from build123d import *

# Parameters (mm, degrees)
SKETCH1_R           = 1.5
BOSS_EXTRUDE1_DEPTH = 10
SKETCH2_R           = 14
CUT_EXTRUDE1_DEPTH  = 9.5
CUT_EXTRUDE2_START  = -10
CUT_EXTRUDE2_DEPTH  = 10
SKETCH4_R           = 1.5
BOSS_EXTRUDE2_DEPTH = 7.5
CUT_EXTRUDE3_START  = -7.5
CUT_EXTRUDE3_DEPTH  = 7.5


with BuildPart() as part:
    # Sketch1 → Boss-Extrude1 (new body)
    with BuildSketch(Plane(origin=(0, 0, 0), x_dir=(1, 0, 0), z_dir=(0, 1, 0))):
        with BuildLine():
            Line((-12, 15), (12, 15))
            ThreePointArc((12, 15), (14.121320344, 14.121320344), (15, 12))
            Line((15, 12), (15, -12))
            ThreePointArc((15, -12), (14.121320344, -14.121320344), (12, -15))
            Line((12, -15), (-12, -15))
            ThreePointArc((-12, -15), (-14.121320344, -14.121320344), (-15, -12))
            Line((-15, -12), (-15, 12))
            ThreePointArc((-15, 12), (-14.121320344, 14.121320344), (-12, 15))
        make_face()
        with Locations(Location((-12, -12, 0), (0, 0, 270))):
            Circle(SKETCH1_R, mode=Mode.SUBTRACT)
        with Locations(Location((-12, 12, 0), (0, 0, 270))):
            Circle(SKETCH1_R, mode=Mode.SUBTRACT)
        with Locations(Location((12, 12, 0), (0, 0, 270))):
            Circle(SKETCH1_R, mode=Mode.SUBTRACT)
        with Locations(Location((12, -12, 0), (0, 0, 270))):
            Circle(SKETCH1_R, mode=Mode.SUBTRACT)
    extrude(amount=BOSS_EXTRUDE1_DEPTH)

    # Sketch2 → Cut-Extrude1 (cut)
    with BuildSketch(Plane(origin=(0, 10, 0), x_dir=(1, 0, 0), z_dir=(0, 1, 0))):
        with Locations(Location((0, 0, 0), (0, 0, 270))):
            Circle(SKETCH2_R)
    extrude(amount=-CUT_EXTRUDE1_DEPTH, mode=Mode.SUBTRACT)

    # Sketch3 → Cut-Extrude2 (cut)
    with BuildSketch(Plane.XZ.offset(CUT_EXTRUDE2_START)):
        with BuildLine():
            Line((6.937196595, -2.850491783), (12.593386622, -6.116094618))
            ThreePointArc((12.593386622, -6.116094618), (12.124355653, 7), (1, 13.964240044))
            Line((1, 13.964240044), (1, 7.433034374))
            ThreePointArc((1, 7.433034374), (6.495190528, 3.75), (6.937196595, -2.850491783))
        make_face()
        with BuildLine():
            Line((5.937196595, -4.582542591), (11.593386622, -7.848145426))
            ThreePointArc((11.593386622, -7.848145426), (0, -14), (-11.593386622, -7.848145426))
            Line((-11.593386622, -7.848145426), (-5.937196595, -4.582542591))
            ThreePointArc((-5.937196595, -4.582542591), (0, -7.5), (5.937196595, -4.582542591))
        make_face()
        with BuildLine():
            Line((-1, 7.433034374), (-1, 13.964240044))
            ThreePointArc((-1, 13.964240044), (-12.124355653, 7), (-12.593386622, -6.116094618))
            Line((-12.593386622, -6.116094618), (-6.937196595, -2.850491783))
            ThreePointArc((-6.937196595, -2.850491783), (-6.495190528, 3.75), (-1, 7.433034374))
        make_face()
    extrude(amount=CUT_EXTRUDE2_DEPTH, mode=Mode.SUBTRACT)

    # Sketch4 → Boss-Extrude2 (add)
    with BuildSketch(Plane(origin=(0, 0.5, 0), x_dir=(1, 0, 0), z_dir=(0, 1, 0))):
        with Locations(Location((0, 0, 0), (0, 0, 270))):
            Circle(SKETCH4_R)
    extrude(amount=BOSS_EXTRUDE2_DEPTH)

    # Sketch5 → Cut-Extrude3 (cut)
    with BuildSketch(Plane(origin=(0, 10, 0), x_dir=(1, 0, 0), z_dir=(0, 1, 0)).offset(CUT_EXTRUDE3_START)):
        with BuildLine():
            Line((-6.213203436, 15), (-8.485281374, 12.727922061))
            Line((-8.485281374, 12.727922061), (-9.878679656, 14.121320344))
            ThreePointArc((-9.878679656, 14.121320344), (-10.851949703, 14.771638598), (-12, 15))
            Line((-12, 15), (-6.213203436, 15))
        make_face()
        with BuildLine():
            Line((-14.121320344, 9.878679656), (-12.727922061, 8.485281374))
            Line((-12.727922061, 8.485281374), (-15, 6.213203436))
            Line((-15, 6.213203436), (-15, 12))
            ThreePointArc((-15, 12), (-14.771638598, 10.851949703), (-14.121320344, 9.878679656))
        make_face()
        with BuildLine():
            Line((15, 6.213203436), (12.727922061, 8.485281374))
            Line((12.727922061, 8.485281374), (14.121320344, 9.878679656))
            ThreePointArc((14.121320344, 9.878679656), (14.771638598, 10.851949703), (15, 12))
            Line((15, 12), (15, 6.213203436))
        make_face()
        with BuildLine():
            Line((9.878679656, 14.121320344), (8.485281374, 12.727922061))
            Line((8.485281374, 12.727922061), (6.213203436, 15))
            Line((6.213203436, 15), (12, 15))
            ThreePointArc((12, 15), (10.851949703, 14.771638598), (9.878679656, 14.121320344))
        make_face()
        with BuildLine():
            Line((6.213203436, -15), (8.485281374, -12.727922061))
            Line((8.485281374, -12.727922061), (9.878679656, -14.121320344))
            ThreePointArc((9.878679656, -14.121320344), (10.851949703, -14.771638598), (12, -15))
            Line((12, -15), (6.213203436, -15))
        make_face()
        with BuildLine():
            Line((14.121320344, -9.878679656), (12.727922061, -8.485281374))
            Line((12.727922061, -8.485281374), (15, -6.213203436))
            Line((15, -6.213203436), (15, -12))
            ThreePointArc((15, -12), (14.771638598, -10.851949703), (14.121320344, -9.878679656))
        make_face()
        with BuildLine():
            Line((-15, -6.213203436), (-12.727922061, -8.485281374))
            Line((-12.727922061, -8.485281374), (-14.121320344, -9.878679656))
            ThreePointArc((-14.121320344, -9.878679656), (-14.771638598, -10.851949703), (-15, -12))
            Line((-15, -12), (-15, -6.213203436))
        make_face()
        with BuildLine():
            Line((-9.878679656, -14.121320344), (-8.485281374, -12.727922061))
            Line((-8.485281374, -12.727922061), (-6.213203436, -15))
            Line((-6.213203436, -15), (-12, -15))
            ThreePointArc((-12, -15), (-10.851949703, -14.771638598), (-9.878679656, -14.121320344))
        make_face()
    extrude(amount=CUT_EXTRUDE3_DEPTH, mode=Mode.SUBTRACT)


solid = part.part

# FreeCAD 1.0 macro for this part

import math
import FreeCAD as App
import Part
import Sketcher
Q = App.Units.Quantity

doc = App.newDocument("Part")
body = doc.addObject("PartDesign::Body", "Body")

# Sketch on XZ plane
sketch1 = body.newObject("Sketcher::SketchObject", "Sketch")
sketch1.AttachmentSupport = (doc.getObject("XZ_Plane"), [""])
sketch1.MapMode = "FlatFace"
sketch1.addGeometry(Part.LineSegment(App.Vector(12, -15, 0), App.Vector(-12, -15, 0)), False)
sketch1.addGeometry(Part.ArcOfCircle(Part.Circle(App.Vector(-12, -12, 0), App.Vector(0, 0, 1), 3), math.radians(180), math.radians(270)), False)
sketch1.addGeometry(Part.LineSegment(App.Vector(-15, -12, 0), App.Vector(-15, 12, 0)), False)
sketch1.addGeometry(Part.ArcOfCircle(Part.Circle(App.Vector(-12, 12, 0), App.Vector(0, 0, 1), 3), math.radians(90), math.radians(180)), False)
sketch1.addGeometry(Part.LineSegment(App.Vector(-12, 15, 0), App.Vector(12, 15, 0)), False)
sketch1.addGeometry(Part.ArcOfCircle(Part.Circle(App.Vector(12, 12, 0), App.Vector(0, 0, 1), 3), math.radians(0), math.radians(90)), False)
sketch1.addGeometry(Part.LineSegment(App.Vector(15, 12, 0), App.Vector(15, -12, 0)), False)
sketch1.addGeometry(Part.ArcOfCircle(Part.Circle(App.Vector(12, -12, 0), App.Vector(0, 0, 1), 3), math.radians(-90), math.radians(0)), False)
sketch1.addGeometry(Part.Circle(App.Vector(12, 12, 0), App.Vector(0, 0, 1), 1.5), False)
sketch1.addGeometry(Part.Circle(App.Vector(-12, 12, 0), App.Vector(0, 0, 1), 1.5), False)
sketch1.addGeometry(Part.Circle(App.Vector(12, -12, 0), App.Vector(0, 0, 1), 1.5), False)
sketch1.addGeometry(Part.Circle(App.Vector(-12, -12, 0), App.Vector(0, 0, 1), 1.5), False)
sketch1.addConstraint(Sketcher.Constraint("Tangent", 0, 2, 1, 2))
sketch1.addConstraint(Sketcher.Constraint("Tangent", 1, 1, 2, 1))
sketch1.addConstraint(Sketcher.Constraint("Tangent", 2, 2, 3, 2))
sketch1.addConstraint(Sketcher.Constraint("Tangent", 3, 1, 4, 1))
sketch1.addConstraint(Sketcher.Constraint("Tangent", 4, 2, 5, 2))
sketch1.addConstraint(Sketcher.Constraint("Tangent", 5, 1, 6, 1))
sketch1.addConstraint(Sketcher.Constraint("Tangent", 6, 2, 7, 2))
sketch1.addConstraint(Sketcher.Constraint("Tangent", 7, 1, 0, 1))
sketch1.addConstraint(Sketcher.Constraint("Horizontal", 0))
sketch1.addConstraint(Sketcher.Constraint("Vertical", 2))
sketch1.addConstraint(Sketcher.Constraint("Horizontal", 4))
sketch1.addConstraint(Sketcher.Constraint("Vertical", 6))
sketch1.addConstraint(Sketcher.Constraint("Coincident", 8, 3, 5, 3))
sketch1.addConstraint(Sketcher.Constraint("Coincident", 9, 3, 3, 3))
sketch1.addConstraint(Sketcher.Constraint("Coincident", 10, 3, 7, 3))
sketch1.addConstraint(Sketcher.Constraint("Coincident", 11, 3, 1, 3))
sketch1.addConstraint(Sketcher.Constraint("Equal", 1, 3))
sketch1.addConstraint(Sketcher.Constraint("Equal", 3, 5))
sketch1.addConstraint(Sketcher.Constraint("Equal", 5, 7))
sketch1.addConstraint(Sketcher.Constraint("Equal", 8, 9))
sketch1.addConstraint(Sketcher.Constraint("Equal", 9, 10))
sketch1.addConstraint(Sketcher.Constraint("Equal", 10, 11))
sketch1.addConstraint(Sketcher.Constraint("Symmetric", 1, 3, 5, 3, -1, 1))
sketch1.addConstraint(Sketcher.Constraint("Equal", 4, 2))
sketch1.addConstraint(Sketcher.Constraint("Diameter", 8, Q("3 mm")))
sketch1.addConstraint(Sketcher.Constraint("Radius", 1, Q("3 mm")))
sketch1.addConstraint(Sketcher.Constraint("DistanceX", 0, 2, 0, 1, Q("24 mm")))
pad1 = body.newObject("PartDesign::Pad", "Pad")
pad1.Profile = sketch1
pad1.Length = 10
pad1.Reversed = True

# Sketch on XZ plane
sketch2 = body.newObject("Sketcher::SketchObject", "Sketch001")
sketch2.AttachmentSupport = (doc.getObject("XZ_Plane"), [""])
sketch2.MapMode = "FlatFace"
sketch2.AttachmentOffset = App.Placement(App.Vector(0, 0, -10), App.Rotation())
sketch2.addGeometry(Part.Circle(App.Vector(0, 0, 0), App.Vector(0, 0, 1), 14), False)
sketch2.addConstraint(Sketcher.Constraint("Coincident", 0, 3, -1, 1))
sketch2.addConstraint(Sketcher.Constraint("Diameter", 0, Q("28 mm")))
pocket1 = body.newObject("PartDesign::Pocket", "Pocket")
pocket1.Profile = sketch2
pocket1.Length = 9.5
pocket1.Reversed = True

# Sketch on XZ plane
sketch3 = body.newObject("Sketcher::SketchObject", "Sketch002")
sketch3.AttachmentSupport = (doc.getObject("XZ_Plane"), [""])
sketch3.MapMode = "FlatFace"
sketch3.AttachmentOffset = App.Placement(App.Vector(0, 0, -10), App.Rotation())
sketch3.addGeometry(Part.LineSegment(App.Vector(6.937197, -2.850492, 0), App.Vector(12.593387, -6.116095, 0)), False)
sketch3.addGeometry(Part.ArcOfCircle(Part.Circle(App.Vector(0, 0, 0), App.Vector(0, 0, 1), 14), math.radians(-25.903956), math.radians(85.903956)), False)
sketch3.addGeometry(Part.LineSegment(App.Vector(1, 13.96424, 0), App.Vector(1, 7.433034, 0)), False)
sketch3.addGeometry(Part.ArcOfCircle(Part.Circle(App.Vector(0, 0, 0), App.Vector(0, 0, 1), 7.5), math.radians(-22.337744), math.radians(82.337744)), False)
sketch3.addGeometry(Part.LineSegment(App.Vector(11.593387, -7.848145, 0), App.Vector(5.937197, -4.582543, 0)), False)
sketch3.addGeometry(Part.ArcOfCircle(Part.Circle(App.Vector(0, 0, 0), App.Vector(0, 0, 1), 7.5), math.radians(-142.337744), math.radians(-37.662256)), False)
sketch3.addGeometry(Part.LineSegment(App.Vector(-5.937197, -4.582543, 0), App.Vector(-11.593387, -7.848145, 0)), False)
sketch3.addGeometry(Part.ArcOfCircle(Part.Circle(App.Vector(0, 0, 0), App.Vector(0, 0, 1), 14), math.radians(-145.903956), math.radians(-34.096044)), False)
sketch3.addGeometry(Part.LineSegment(App.Vector(-1, 7.433034, 0), App.Vector(-1, 13.96424, 0)), False)
sketch3.addGeometry(Part.ArcOfCircle(Part.Circle(App.Vector(0, 0, 0), App.Vector(0, 0, 1), 14), math.radians(94.096044), math.radians(205.903956)), False)
sketch3.addGeometry(Part.LineSegment(App.Vector(-12.593387, -6.116095, 0), App.Vector(-6.937197, -2.850492, 0)), False)
sketch3.addGeometry(Part.ArcOfCircle(Part.Circle(App.Vector(0, 0, 0), App.Vector(0, 0, 1), 7.5), math.radians(97.662256), math.radians(202.337744)), False)
sketch3.addConstraint(Sketcher.Constraint("Coincident", 0, 2, 1, 1))
sketch3.addConstraint(Sketcher.Constraint("Coincident", 1, 2, 2, 1))
sketch3.addConstraint(Sketcher.Constraint("Coincident", 2, 2, 3, 2))
sketch3.addConstraint(Sketcher.Constraint("Coincident", 3, 1, 0, 1))
sketch3.addConstraint(Sketcher.Constraint("Coincident", 4, 2, 5, 2))
sketch3.addConstraint(Sketcher.Constraint("Coincident", 5, 1, 6, 1))
sketch3.addConstraint(Sketcher.Constraint("Coincident", 6, 2, 7, 1))
sketch3.addConstraint(Sketcher.Constraint("Coincident", 7, 2, 4, 1))
sketch3.addConstraint(Sketcher.Constraint("Coincident", 8, 2, 9, 1))
sketch3.addConstraint(Sketcher.Constraint("Coincident", 9, 2, 10, 1))
sketch3.addConstraint(Sketcher.Constraint("Coincident", 10, 2, 11, 2))
sketch3.addConstraint(Sketcher.Constraint("Coincident", 11, 1, 8, 1))
sketch3.addConstraint(Sketcher.Constraint("Vertical", 2))
sketch3.addConstraint(Sketcher.Constraint("Vertical", 8))
sketch3.addConstraint(Sketcher.Constraint("Coincident", 1, 3, -1, 1))
sketch3.addConstraint(Sketcher.Constraint("Coincident", 3, 3, -1, 1))
sketch3.addConstraint(Sketcher.Constraint("Coincident", 5, 3, -1, 1))
sketch3.addConstraint(Sketcher.Constraint("Coincident", 7, 3, -1, 1))
sketch3.addConstraint(Sketcher.Constraint("Coincident", 9, 3, -1, 1))
sketch3.addConstraint(Sketcher.Constraint("Coincident", 11, 3, -1, 1))
sketch3.addConstraint(Sketcher.Constraint("Equal", 3, 5))
sketch3.addConstraint(Sketcher.Constraint("Equal", 1, 7))
sketch3.addConstraint(Sketcher.Constraint("Equal", 7, 9))
sketch3.addConstraint(Sketcher.Constraint("Equal", 5, 11))
sketch3.addConstraint(Sketcher.Constraint("Parallel", 0, 4))
sketch3.addConstraint(Sketcher.Constraint("Parallel", 6, 10))
sketch3.addConstraint(Sketcher.Constraint("Horizontal", 4, 2, 5, 1))
sketch3.addConstraint(Sketcher.Constraint("Horizontal", 6, 2, 7, 2))
sketch3.addConstraint(Sketcher.Constraint("Horizontal", 1, 2, 8, 2))
sketch3.addConstraint(Sketcher.Constraint("Horizontal", 0, 2, 9, 2))
sketch3.addConstraint(Sketcher.Constraint("Equal", 0, 4))
sketch3.addConstraint(Sketcher.Constraint("Radius", 1, Q("14 mm")))
sketch3.addConstraint(Sketcher.Constraint("Radius", 3, Q("7.5 mm")))
sketch3.addConstraint(Sketcher.Constraint("Angle", 0, Q("-30 deg")))
sketch3.addConstraint(Sketcher.Constraint("DistanceX", -1, 1, 1, 2, Q("1 mm")))
sketch3.addConstraint(Sketcher.Constraint("DistanceX", 4, 2, 3, 1, Q("1 mm")))
pocket2 = body.newObject("PartDesign::Pocket", "Pocket001")
pocket2.Profile = sketch3
pocket2.Length = 10
pocket2.Reversed = True

# Sketch on XZ plane
sketch4 = body.newObject("Sketcher::SketchObject", "Sketch003")
sketch4.AttachmentSupport = (doc.getObject("XZ_Plane"), [""])
sketch4.MapMode = "FlatFace"
sketch4.AttachmentOffset = App.Placement(App.Vector(0, 0, -0.5), App.Rotation())
sketch4.addGeometry(Part.Circle(App.Vector(0, 0, 0), App.Vector(0, 0, 1), 1.5), False)
sketch4.addConstraint(Sketcher.Constraint("Coincident", 0, 3, -1, 1))
sketch4.addConstraint(Sketcher.Constraint("Diameter", 0, Q("3 mm")))
pad2 = body.newObject("PartDesign::Pad", "Pad001")
pad2.Profile = sketch4
pad2.Length = 7.5
pad2.Reversed = True

# Sketch on XZ plane
sketch5 = body.newObject("Sketcher::SketchObject", "Sketch004")
sketch5.AttachmentSupport = (doc.getObject("XZ_Plane"), [""])
sketch5.MapMode = "FlatFace"
sketch5.AttachmentOffset = App.Placement(App.Vector(0, 0, -2.5), App.Rotation())
sketch5.addGeometry(Part.LineSegment(App.Vector(-8.485281, -12.727922, 0), App.Vector(-6.213203, -15, 0)), False)
sketch5.addGeometry(Part.LineSegment(App.Vector(-6.213203, -15, 0), App.Vector(-12, -15, 0)), False)
sketch5.addGeometry(Part.ArcOfCircle(Part.Circle(App.Vector(-12, -12, 0), App.Vector(0, 0, 1), 3), math.radians(-90), math.radians(-45)), False)
sketch5.addGeometry(Part.LineSegment(App.Vector(-9.87868, -14.12132, 0), App.Vector(-8.485281, -12.727922, 0)), False)
sketch5.addGeometry(Part.LineSegment(App.Vector(-12.727922, -8.485281, 0), App.Vector(-14.12132, -9.87868, 0)), False)
sketch5.addGeometry(Part.ArcOfCircle(Part.Circle(App.Vector(-12, -12, 0), App.Vector(0, 0, 1), 3), math.radians(135), math.radians(180)), False)
sketch5.addGeometry(Part.LineSegment(App.Vector(-15, -12, 0), App.Vector(-15, -6.213203, 0)), False)
sketch5.addGeometry(Part.LineSegment(App.Vector(-15, -6.213203, 0), App.Vector(-12.727922, -8.485281, 0)), False)
sketch5.addGeometry(Part.LineSegment(App.Vector(12.727922, -8.485281, 0), App.Vector(15, -6.213203, 0)), False)
sketch5.addGeometry(Part.LineSegment(App.Vector(15, -6.213203, 0), App.Vector(15, -12, 0)), False)
sketch5.addGeometry(Part.ArcOfCircle(Part.Circle(App.Vector(12, -12, 0), App.Vector(0, 0, 1), 3), math.radians(0), math.radians(45)), False)
sketch5.addGeometry(Part.LineSegment(App.Vector(14.12132, -9.87868, 0), App.Vector(12.727922, -8.485281, 0)), False)
sketch5.addGeometry(Part.LineSegment(App.Vector(8.485281, -12.727922, 0), App.Vector(9.87868, -14.12132, 0)), False)
sketch5.addGeometry(Part.ArcOfCircle(Part.Circle(App.Vector(12, -12, 0), App.Vector(0, 0, 1), 3), math.radians(-135), math.radians(-90)), False)
sketch5.addGeometry(Part.LineSegment(App.Vector(12, -15, 0), App.Vector(6.213203, -15, 0)), False)
sketch5.addGeometry(Part.LineSegment(App.Vector(6.213203, -15, 0), App.Vector(8.485281, -12.727922, 0)), False)
sketch5.addGeometry(Part.LineSegment(App.Vector(8.485281, 12.727922, 0), App.Vector(6.213203, 15, 0)), False)
sketch5.addGeometry(Part.LineSegment(App.Vector(6.213203, 15, 0), App.Vector(12, 15, 0)), False)
sketch5.addGeometry(Part.ArcOfCircle(Part.Circle(App.Vector(12, 12, 0), App.Vector(0, 0, 1), 3), math.radians(90), math.radians(135)), False)
sketch5.addGeometry(Part.LineSegment(App.Vector(9.87868, 14.12132, 0), App.Vector(8.485281, 12.727922, 0)), False)
sketch5.addGeometry(Part.LineSegment(App.Vector(12.727922, 8.485281, 0), App.Vector(14.12132, 9.87868, 0)), False)
sketch5.addGeometry(Part.ArcOfCircle(Part.Circle(App.Vector(12, 12, 0), App.Vector(0, 0, 1), 3), math.radians(-45), math.radians(0)), False)
sketch5.addGeometry(Part.LineSegment(App.Vector(15, 12, 0), App.Vector(15, 6.213203, 0)), False)
sketch5.addGeometry(Part.LineSegment(App.Vector(15, 6.213203, 0), App.Vector(12.727922, 8.485281, 0)), False)
sketch5.addGeometry(Part.LineSegment(App.Vector(-12.727922, 8.485281, 0), App.Vector(-15, 6.213203, 0)), False)
sketch5.addGeometry(Part.LineSegment(App.Vector(-15, 6.213203, 0), App.Vector(-15, 12, 0)), False)
sketch5.addGeometry(Part.ArcOfCircle(Part.Circle(App.Vector(-12, 12, 0), App.Vector(0, 0, 1), 3), math.radians(180), math.radians(225)), False)
sketch5.addGeometry(Part.LineSegment(App.Vector(-14.12132, 9.87868, 0), App.Vector(-12.727922, 8.485281, 0)), False)
sketch5.addGeometry(Part.LineSegment(App.Vector(-8.485281, 12.727922, 0), App.Vector(-9.87868, 14.12132, 0)), False)
sketch5.addGeometry(Part.ArcOfCircle(Part.Circle(App.Vector(-12, 12, 0), App.Vector(0, 0, 1), 3), math.radians(45), math.radians(90)), False)
sketch5.addGeometry(Part.LineSegment(App.Vector(-12, 15, 0), App.Vector(-6.213203, 15, 0)), False)
sketch5.addGeometry(Part.LineSegment(App.Vector(-6.213203, 15, 0), App.Vector(-8.485281, 12.727922, 0)), False)
sketch5.addConstraint(Sketcher.Constraint("Coincident", 0, 2, 1, 1))
sketch5.addConstraint(Sketcher.Constraint("Tangent", 1, 2, 2, 1))
sketch5.addConstraint(Sketcher.Constraint("Tangent", 2, 2, 3, 1))
sketch5.addConstraint(Sketcher.Constraint("Coincident", 3, 2, 0, 1))
sketch5.addConstraint(Sketcher.Constraint("Tangent", 4, 2, 5, 1))
sketch5.addConstraint(Sketcher.Constraint("Tangent", 5, 2, 6, 1))
sketch5.addConstraint(Sketcher.Constraint("Coincident", 6, 2, 7, 1))
sketch5.addConstraint(Sketcher.Constraint("Coincident", 7, 2, 4, 1))
sketch5.addConstraint(Sketcher.Constraint("Coincident", 8, 2, 9, 1))
sketch5.addConstraint(Sketcher.Constraint("Tangent", 9, 2, 10, 1))
sketch5.addConstraint(Sketcher.Constraint("Tangent", 10, 2, 11, 1))
sketch5.addConstraint(Sketcher.Constraint("Coincident", 11, 2, 8, 1))
sketch5.addConstraint(Sketcher.Constraint("Tangent", 12, 2, 13, 1))
sketch5.addConstraint(Sketcher.Constraint("Tangent", 13, 2, 14, 1))
sketch5.addConstraint(Sketcher.Constraint("Coincident", 14, 2, 15, 1))
sketch5.addConstraint(Sketcher.Constraint("Coincident", 15, 2, 12, 1))
sketch5.addConstraint(Sketcher.Constraint("Coincident", 16, 2, 17, 1))
sketch5.addConstraint(Sketcher.Constraint("Tangent", 17, 2, 18, 1))
sketch5.addConstraint(Sketcher.Constraint("Tangent", 18, 2, 19, 1))
sketch5.addConstraint(Sketcher.Constraint("Coincident", 19, 2, 16, 1))
sketch5.addConstraint(Sketcher.Constraint("Tangent", 20, 2, 21, 1))
sketch5.addConstraint(Sketcher.Constraint("Tangent", 21, 2, 22, 1))
sketch5.addConstraint(Sketcher.Constraint("Coincident", 22, 2, 23, 1))
sketch5.addConstraint(Sketcher.Constraint("Coincident", 23, 2, 20, 1))
sketch5.addConstraint(Sketcher.Constraint("Coincident", 24, 2, 25, 1))
sketch5.addConstraint(Sketcher.Constraint("Tangent", 25, 2, 26, 1))
sketch5.addConstraint(Sketcher.Constraint("Tangent", 26, 2, 27, 1))
sketch5.addConstraint(Sketcher.Constraint("Coincident", 27, 2, 24, 1))
sketch5.addConstraint(Sketcher.Constraint("Tangent", 28, 2, 29, 1))
sketch5.addConstraint(Sketcher.Constraint("Tangent", 29, 2, 30, 1))
sketch5.addConstraint(Sketcher.Constraint("Coincident", 30, 2, 31, 1))
sketch5.addConstraint(Sketcher.Constraint("Coincident", 31, 2, 28, 1))
sketch5.addConstraint(Sketcher.Constraint("Horizontal", 1))
sketch5.addConstraint(Sketcher.Constraint("Vertical", 6))
sketch5.addConstraint(Sketcher.Constraint("Vertical", 9))
sketch5.addConstraint(Sketcher.Constraint("Horizontal", 14))
sketch5.addConstraint(Sketcher.Constraint("Horizontal", 17))
sketch5.addConstraint(Sketcher.Constraint("Vertical", 22))
sketch5.addConstraint(Sketcher.Constraint("Vertical", 25))
sketch5.addConstraint(Sketcher.Constraint("Horizontal", 30))
sketch5.addConstraint(Sketcher.Constraint("Coincident", 5, 3, 2, 3))
sketch5.addConstraint(Sketcher.Constraint("Coincident", 13, 3, 10, 3))
sketch5.addConstraint(Sketcher.Constraint("Coincident", 21, 3, 18, 3))
sketch5.addConstraint(Sketcher.Constraint("Coincident", 29, 3, 26, 3))
sketch5.addConstraint(Sketcher.Constraint("Equal", 2, 5))
sketch5.addConstraint(Sketcher.Constraint("Equal", 5, 10))
sketch5.addConstraint(Sketcher.Constraint("Equal", 10, 13))
sketch5.addConstraint(Sketcher.Constraint("Equal", 13, 18))
sketch5.addConstraint(Sketcher.Constraint("Equal", 18, 21))
sketch5.addConstraint(Sketcher.Constraint("Equal", 21, 26))
sketch5.addConstraint(Sketcher.Constraint("Equal", 26, 29))
sketch5.addConstraint(Sketcher.Constraint("Symmetric", 2, 3, 18, 3, -1, 1))
sketch5.addConstraint(Sketcher.Constraint("Symmetric", 10, 3, 26, 3, -1, 1))
sketch5.addConstraint(Sketcher.Constraint("Symmetric", 3, 2, 19, 2, -1, 1))
sketch5.addConstraint(Sketcher.Constraint("Symmetric", 7, 2, 23, 2, -1, 1))
sketch5.addConstraint(Sketcher.Constraint("Symmetric", 11, 2, 27, 2, -1, 1))
sketch5.addConstraint(Sketcher.Constraint("Symmetric", 15, 2, 31, 2, -1, 1))
sketch5.addConstraint(Sketcher.Constraint("Symmetric", 2, 3, 10, 3, -2))
sketch5.addConstraint(Sketcher.Constraint("Symmetric", 7, 2, 11, 2, -2))
sketch5.addConstraint(Sketcher.Constraint("Symmetric", 3, 2, 15, 2, -2))
sketch5.addConstraint(Sketcher.Constraint("Perpendicular", 0, 3))
sketch5.addConstraint(Sketcher.Constraint("Parallel", 3, 4))
sketch5.addConstraint(Sketcher.Constraint("Perpendicular", 4, 7))
sketch5.addConstraint(Sketcher.Constraint("Perpendicular", 7, 8))
sketch5.addConstraint(Sketcher.Constraint("Perpendicular", 8, 11))
sketch5.addConstraint(Sketcher.Constraint("Perpendicular", 12, 15))
sketch5.addConstraint(Sketcher.Constraint("Perpendicular", 15, 16))
sketch5.addConstraint(Sketcher.Constraint("Perpendicular", 20, 23))
sketch5.addConstraint(Sketcher.Constraint("Perpendicular", 23, 24))
sketch5.addConstraint(Sketcher.Constraint("Perpendicular", 28, 31))
sketch5.addConstraint(Sketcher.Constraint("Equal", 30, 6))
sketch5.addConstraint(Sketcher.Constraint("Radius", 2, Q("3 mm")))
sketch5.addConstraint(Sketcher.Constraint("DistanceX", 2, 3, -1, 1, Q("12 mm")))
sketch5.addConstraint(Sketcher.Constraint("DistanceY", 2, 3, -1, 1, Q("12 mm")))
sketch5.addConstraint(Sketcher.Constraint("DistanceX", 2, 2, 3, 2, Q("1.393398 mm")))
pocket3 = body.newObject("PartDesign::Pocket", "Pocket002")
pocket3.Profile = sketch5
pocket3.Length = 7.5

doc.recompute()
